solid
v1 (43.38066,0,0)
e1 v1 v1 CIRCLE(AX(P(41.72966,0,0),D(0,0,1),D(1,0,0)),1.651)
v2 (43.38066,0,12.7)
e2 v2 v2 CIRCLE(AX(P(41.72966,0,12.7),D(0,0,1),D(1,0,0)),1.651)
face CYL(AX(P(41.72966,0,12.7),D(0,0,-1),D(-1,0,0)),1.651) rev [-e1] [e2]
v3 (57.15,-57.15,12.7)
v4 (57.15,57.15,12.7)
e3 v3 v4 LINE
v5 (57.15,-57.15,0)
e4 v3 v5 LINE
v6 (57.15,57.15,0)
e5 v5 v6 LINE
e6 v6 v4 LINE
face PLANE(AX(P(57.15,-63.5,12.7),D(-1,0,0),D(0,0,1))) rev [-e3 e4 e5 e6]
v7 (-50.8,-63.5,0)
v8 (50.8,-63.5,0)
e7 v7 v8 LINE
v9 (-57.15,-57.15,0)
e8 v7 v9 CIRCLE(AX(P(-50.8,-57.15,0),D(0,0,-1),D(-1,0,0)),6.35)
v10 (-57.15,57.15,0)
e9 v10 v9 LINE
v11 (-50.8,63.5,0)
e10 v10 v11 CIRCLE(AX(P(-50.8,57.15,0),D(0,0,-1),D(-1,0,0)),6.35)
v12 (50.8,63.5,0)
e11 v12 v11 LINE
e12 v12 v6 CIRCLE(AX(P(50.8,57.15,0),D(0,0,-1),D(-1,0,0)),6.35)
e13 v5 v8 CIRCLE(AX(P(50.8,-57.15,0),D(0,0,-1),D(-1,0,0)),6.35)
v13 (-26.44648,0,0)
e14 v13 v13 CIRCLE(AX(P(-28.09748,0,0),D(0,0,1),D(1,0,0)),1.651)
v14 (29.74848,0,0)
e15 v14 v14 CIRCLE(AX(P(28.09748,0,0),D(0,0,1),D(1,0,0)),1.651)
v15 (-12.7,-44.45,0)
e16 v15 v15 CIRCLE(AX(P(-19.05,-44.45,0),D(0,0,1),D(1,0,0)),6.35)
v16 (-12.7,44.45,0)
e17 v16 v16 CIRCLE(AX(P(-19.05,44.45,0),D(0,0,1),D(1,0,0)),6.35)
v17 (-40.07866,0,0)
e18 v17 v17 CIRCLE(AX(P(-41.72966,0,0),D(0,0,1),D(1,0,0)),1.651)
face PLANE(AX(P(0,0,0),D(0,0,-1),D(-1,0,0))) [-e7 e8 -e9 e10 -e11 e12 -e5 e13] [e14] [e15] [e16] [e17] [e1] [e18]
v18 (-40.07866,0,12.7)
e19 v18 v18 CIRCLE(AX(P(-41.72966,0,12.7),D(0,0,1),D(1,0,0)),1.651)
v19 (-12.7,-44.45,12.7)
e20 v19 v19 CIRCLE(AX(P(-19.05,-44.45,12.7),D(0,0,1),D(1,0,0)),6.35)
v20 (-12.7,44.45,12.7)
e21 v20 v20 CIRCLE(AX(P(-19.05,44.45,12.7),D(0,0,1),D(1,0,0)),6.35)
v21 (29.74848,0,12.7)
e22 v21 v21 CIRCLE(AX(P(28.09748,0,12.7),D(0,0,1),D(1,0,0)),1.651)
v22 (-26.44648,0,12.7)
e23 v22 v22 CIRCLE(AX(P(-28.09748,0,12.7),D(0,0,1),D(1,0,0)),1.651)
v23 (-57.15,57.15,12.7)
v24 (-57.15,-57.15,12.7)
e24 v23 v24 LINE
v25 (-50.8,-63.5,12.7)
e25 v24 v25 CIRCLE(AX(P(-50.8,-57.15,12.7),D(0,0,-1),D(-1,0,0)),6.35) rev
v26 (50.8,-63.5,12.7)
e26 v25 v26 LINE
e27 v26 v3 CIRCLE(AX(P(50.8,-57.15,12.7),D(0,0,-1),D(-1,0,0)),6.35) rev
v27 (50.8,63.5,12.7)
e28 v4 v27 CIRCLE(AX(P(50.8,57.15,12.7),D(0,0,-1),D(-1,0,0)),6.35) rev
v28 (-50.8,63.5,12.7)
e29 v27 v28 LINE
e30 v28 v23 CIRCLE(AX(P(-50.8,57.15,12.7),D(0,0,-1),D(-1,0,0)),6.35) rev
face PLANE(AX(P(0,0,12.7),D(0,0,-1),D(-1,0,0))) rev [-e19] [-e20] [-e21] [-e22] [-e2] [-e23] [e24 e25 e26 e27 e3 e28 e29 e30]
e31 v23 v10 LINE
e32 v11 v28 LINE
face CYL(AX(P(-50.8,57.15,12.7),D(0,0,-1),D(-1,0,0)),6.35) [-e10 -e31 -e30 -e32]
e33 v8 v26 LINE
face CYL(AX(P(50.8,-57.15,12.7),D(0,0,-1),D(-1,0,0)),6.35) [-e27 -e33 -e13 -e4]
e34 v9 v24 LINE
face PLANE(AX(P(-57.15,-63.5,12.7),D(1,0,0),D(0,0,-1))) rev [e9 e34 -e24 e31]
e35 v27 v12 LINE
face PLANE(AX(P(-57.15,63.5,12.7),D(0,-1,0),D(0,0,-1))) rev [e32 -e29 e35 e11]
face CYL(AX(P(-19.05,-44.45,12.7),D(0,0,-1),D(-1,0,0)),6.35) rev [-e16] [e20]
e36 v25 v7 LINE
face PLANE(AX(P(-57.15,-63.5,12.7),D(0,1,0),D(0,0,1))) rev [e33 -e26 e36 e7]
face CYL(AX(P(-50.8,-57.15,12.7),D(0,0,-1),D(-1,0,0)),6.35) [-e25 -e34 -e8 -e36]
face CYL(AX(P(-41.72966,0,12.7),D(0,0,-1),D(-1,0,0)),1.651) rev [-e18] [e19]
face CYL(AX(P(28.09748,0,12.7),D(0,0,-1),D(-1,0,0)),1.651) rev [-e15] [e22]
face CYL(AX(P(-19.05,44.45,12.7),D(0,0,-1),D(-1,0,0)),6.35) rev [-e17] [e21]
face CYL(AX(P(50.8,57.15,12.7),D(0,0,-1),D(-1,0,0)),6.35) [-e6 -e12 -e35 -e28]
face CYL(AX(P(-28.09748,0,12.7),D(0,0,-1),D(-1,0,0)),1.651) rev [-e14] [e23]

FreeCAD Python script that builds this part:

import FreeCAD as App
import Part
import Sketcher

V = App.Vector
Q = App.Units.Quantity


def edges_at(feature, points):
    """Names of the edges that pass closest to the given points."""
    edges = feature.Shape.Edges
    near = lambda p: min(range(len(edges)), key=lambda i: edges[i].distToShape(Part.Vertex(*p))[0])
    return sorted({f"Edge{near(p) + 1}" for p in points})


def add_polygon(sketch, points):
    """Adds a closed chain of lines whose ends are joined by coincident constraints."""
    first, n = sketch.GeometryCount, len(points)
    for a, b in zip(points, points[1:] + points[:1]):
        sketch.addGeometry(Part.LineSegment(App.Vector(*a, 0), App.Vector(*b, 0)), False)
    for i in range(n):
        sketch.addConstraint(Sketcher.Constraint("Coincident", first + i, 2, first + (i + 1) % n, 1))

doc = App.newDocument("Part")
params = doc.addObject("Spreadsheet::Sheet", "Params")
for row, (alias, value) in enumerate([
    ("sketch1_diameter", "0.5 in"),
    ("sketch1_diameter2", "0.13 in"),
    ("sketch1_height", "5 in"),
    ("sketch1_width", "4.5 in"),
    ("pad1_length", "0.5 in"),
    ("fillet_radius", "0.25 in"),
], start=1):
    params.set(f"A{row}", alias)
    params.set(f"B{row}", "=" + value)
    params.setAlias(f"B{row}", alias)

body = doc.addObject("PartDesign::Body", "Body")

# Sketch on XY plane
sketch1 = body.newObject("Sketcher::SketchObject", "Sketch")
sketch1.AttachmentSupport = (doc.getObject("XY_Plane"), [""])
sketch1.MapMode = "FlatFace"
add_polygon(sketch1, [(-57.1, 63.5), (-57.1, -63.5), (57.1, -63.5), (57.1, 63.5)])  # lines 0-3
sketch1.addGeometry(Part.Circle(V(-19.1, -44.5, 0), V(0, 0, 1), 6.3), False)  # 4
sketch1.addGeometry(Part.Circle(V(-41.7, 0, 0), V(0, 0, 1), 1.7), False)  # 5
sketch1.addGeometry(Part.Circle(V(-28.1, 0, 0), V(0, 0, 1), 1.7), False)  # 6
sketch1.addGeometry(Part.Circle(V(-19.1, 44.5, 0), V(0, 0, 1), 6.3), False)  # 7
sketch1.addGeometry(Part.Circle(V(28.1, 0, 0), V(0, 0, 1), 1.7), False)  # 8
sketch1.addGeometry(Part.Circle(V(41.7, 0, 0), V(0, 0, 1), 1.7), False)  # 9
sketch1.addConstraint([
    Sketcher.Constraint("Vertical", 0),
    Sketcher.Constraint("Horizontal", 1),
    Sketcher.Constraint("Vertical", 2),
    Sketcher.Constraint("Horizontal", 3),
    Sketcher.Constraint("Equal", 5, 6),
    Sketcher.Constraint("Equal", 4, 7),
    Sketcher.Constraint("Equal", 6, 8),
    Sketcher.Constraint("Equal", 8, 9),
    Sketcher.Constraint("Symmetric", 6, 3, 8, 3, -1, 1),
    Sketcher.Constraint("Symmetric", 5, 3, 9, 3, -1, 1),
    Sketcher.Constraint("Symmetric", 0, 2, 2, 2, -1, 1),
    Sketcher.Constraint("Symmetric", 4, 3, 7, 3, -1),
    Sketcher.Constraint("PointOnObject", 5, 3, -1),
    Sketcher.Constraint("PointOnObject", 6, 3, -1),
    Sketcher.Constraint("Diameter", 4, Q("0.5 in")),
    Sketcher.Constraint("Diameter", 5, Q("0.13 in")),
    Sketcher.Constraint("DistanceY", 0, 2, 0, 1, Q("5 in")),
    Sketcher.Constraint("DistanceX", 1, 1, 1, 2, Q("4.5 in")),
    Sketcher.Constraint("DistanceX", 4, 3, 1, 2, Q("3 in")),
    Sketcher.Constraint("DistanceY", 4, 3, 7, 3, Q("3.5 in")),
    Sketcher.Constraint("DistanceX", 5, 3, -1, 1, Q("1.6429 in")),
    Sketcher.Constraint("DistanceX", 6, 3, -1, 1, Q("1.1062 in")),
])
sketch1.setExpression("Constraints[18]", "Params.sketch1_diameter")
sketch1.setExpression("Constraints[19]", "Params.sketch1_diameter2")
sketch1.setExpression("Constraints[20]", "Params.sketch1_height")
sketch1.setExpression("Constraints[21]", "Params.sketch1_width")
pad1 = body.newObject("PartDesign::Pad", "Pad")
pad1.Profile = sketch1
pad1.setExpression("Length", "Params.pad1_length")
doc.recompute()

fillet = body.newObject("PartDesign::Fillet", "Fillet")
fillet.Base = (pad1, edges_at(pad1, [
    (57.15, -63.5, 6.35),
    (-57.15, -63.5, 6.35),
    (-57.15, 63.5, 6.35),
    (57.15, 63.5, 6.35),
]))
fillet.setExpression("Radius", "Params.fillet_radius")

doc.recompute()
